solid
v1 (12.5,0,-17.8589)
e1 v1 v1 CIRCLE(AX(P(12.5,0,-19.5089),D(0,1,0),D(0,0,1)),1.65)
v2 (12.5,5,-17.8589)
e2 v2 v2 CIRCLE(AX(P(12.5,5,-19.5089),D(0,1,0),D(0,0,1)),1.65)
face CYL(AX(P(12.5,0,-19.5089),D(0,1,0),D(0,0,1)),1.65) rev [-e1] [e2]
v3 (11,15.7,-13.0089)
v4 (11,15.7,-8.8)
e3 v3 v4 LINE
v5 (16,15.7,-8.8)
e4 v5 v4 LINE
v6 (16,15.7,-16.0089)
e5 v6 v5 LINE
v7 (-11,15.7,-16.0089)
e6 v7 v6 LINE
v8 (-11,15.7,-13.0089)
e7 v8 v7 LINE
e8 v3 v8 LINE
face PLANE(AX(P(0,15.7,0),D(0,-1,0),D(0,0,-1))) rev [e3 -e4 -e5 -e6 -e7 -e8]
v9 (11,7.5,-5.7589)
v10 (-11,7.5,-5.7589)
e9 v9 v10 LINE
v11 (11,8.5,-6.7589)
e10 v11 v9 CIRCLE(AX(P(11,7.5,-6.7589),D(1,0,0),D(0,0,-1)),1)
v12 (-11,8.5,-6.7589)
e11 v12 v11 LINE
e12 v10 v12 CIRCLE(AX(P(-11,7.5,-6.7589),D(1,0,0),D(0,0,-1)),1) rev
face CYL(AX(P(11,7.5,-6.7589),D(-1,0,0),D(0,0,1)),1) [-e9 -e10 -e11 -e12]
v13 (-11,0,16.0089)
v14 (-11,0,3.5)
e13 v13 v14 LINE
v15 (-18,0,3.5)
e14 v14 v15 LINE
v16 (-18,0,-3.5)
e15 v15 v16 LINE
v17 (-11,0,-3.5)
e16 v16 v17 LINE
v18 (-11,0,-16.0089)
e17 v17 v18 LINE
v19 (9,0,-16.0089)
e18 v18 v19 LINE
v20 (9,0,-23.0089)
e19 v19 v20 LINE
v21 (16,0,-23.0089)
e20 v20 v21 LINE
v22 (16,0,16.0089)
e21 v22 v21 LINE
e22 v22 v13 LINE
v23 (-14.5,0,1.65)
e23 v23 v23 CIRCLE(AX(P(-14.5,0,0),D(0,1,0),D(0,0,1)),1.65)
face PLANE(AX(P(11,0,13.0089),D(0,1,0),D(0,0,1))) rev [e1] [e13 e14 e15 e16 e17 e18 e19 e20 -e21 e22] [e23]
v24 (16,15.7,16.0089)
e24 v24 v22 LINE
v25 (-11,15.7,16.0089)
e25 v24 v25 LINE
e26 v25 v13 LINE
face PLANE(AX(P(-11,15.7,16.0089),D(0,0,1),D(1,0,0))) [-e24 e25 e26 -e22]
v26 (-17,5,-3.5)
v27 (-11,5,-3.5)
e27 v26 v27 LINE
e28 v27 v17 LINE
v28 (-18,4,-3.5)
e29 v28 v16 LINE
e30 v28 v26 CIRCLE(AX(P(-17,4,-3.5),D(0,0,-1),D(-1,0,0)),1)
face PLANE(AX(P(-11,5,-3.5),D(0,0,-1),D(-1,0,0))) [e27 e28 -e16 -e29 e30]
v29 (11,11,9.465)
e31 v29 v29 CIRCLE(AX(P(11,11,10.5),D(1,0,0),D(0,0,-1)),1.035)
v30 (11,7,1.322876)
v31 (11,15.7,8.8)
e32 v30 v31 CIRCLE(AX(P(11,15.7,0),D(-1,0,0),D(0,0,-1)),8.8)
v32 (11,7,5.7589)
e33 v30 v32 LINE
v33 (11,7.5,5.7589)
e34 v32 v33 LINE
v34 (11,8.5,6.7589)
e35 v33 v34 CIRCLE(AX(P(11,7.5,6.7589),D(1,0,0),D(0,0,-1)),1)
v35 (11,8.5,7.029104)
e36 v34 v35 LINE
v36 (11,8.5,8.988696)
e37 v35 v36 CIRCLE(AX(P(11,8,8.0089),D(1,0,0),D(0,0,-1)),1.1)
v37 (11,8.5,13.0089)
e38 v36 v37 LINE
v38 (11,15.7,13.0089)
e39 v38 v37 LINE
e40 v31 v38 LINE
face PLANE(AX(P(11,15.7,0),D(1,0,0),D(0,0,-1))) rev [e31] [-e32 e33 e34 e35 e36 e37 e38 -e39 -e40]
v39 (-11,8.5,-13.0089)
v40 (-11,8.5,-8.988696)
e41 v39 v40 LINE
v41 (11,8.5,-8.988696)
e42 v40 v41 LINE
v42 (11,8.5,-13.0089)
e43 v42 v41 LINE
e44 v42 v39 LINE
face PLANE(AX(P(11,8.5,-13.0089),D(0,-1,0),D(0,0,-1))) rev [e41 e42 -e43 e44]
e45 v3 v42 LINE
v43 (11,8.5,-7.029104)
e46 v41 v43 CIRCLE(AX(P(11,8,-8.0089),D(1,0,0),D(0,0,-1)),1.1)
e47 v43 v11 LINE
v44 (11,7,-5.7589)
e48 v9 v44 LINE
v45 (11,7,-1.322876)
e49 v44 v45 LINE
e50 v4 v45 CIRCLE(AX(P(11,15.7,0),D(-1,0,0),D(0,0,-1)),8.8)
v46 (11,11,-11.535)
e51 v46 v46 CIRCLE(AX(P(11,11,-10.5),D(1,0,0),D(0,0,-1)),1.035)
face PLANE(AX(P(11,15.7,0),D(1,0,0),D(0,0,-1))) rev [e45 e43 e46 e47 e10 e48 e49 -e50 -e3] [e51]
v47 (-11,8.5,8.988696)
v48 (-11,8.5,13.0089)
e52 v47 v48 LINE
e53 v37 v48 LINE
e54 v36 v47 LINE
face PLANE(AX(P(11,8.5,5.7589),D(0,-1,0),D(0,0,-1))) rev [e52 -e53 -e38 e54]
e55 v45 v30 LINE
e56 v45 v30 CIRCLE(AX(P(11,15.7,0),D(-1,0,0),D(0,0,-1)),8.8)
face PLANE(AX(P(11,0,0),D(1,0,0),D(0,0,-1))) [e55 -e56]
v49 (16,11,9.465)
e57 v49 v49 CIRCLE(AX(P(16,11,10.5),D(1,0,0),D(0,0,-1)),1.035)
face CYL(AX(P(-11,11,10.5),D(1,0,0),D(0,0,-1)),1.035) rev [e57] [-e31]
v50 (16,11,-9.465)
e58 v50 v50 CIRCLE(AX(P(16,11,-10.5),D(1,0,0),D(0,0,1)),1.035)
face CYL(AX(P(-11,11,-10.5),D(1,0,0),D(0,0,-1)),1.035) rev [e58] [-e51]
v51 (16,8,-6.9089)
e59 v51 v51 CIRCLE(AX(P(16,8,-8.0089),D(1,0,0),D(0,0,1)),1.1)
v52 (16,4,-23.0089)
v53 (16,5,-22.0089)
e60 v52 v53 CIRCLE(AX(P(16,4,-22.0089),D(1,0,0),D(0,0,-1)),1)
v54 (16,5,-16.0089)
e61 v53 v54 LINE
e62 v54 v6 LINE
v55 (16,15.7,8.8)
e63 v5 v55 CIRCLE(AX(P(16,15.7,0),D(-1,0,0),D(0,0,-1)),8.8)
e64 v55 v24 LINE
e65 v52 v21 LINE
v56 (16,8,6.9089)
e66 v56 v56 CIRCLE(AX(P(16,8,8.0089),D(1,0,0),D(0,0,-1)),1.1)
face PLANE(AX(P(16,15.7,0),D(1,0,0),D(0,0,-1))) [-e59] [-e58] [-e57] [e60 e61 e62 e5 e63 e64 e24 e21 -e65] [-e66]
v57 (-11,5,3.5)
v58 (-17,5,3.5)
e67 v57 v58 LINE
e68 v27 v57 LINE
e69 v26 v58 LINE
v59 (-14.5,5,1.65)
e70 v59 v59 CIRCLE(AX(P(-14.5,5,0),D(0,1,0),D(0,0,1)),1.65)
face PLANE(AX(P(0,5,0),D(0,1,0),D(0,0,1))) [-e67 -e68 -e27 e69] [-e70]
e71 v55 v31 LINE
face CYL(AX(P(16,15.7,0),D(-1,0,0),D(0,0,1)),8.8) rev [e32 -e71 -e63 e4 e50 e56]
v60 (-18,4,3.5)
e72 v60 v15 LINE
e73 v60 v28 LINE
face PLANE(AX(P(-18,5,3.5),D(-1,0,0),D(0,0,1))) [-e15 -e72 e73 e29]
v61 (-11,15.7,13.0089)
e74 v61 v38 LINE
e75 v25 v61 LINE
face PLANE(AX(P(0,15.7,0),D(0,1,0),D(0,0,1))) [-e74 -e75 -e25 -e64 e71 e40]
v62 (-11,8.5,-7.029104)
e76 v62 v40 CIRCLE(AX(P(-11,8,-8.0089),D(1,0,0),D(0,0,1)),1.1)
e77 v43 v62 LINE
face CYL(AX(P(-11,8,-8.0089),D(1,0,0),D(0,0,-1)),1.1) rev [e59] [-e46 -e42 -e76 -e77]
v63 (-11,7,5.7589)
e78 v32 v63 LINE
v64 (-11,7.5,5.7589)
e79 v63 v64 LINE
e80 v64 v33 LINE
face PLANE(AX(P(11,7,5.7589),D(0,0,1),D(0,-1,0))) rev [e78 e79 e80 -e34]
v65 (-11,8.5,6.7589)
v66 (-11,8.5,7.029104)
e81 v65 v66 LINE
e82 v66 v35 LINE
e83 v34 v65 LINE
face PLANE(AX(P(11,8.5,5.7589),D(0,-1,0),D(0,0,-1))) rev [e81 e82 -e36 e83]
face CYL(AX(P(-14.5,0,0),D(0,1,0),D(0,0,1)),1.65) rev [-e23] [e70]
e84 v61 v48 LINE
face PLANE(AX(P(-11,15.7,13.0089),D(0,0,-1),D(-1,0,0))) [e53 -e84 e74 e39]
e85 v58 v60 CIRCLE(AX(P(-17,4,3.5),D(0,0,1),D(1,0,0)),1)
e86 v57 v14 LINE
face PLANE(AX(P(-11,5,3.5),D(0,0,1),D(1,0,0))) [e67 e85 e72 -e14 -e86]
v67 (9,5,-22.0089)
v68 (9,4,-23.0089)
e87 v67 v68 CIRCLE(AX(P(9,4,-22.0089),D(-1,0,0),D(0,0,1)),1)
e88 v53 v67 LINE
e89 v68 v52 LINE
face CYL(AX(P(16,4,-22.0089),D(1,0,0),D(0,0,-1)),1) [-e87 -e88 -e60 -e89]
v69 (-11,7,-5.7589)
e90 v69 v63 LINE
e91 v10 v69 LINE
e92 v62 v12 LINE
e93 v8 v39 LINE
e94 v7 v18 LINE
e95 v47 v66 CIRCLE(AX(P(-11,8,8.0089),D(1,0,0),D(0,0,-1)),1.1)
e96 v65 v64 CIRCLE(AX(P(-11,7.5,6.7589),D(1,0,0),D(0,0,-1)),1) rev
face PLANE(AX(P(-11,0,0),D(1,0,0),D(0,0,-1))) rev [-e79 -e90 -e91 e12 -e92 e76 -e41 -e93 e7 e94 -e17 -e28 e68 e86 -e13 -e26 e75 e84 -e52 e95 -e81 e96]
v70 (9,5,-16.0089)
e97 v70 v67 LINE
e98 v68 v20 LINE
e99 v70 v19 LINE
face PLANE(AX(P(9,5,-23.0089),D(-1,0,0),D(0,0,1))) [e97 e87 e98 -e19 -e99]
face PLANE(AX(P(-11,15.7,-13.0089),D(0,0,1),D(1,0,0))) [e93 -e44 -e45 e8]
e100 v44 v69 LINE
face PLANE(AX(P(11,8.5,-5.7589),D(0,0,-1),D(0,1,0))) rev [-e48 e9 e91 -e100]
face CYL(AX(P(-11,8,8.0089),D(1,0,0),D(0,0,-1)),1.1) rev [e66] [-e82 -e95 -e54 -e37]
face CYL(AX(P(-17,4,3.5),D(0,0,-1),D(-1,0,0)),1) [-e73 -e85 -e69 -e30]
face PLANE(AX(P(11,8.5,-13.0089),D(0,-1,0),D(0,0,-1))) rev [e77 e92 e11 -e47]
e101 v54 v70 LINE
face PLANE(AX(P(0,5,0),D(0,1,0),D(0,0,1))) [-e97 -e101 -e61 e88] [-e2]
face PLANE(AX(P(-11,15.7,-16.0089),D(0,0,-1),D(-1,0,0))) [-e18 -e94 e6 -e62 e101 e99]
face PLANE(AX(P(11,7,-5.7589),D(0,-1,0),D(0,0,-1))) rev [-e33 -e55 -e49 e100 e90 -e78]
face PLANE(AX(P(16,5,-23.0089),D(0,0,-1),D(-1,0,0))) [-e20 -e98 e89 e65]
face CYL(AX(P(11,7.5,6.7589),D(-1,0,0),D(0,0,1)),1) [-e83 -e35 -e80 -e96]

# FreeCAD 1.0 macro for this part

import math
import FreeCAD as App
import Part
import Sketcher
Q = App.Units.Quantity


def edges_at(feature, points):
    """Names of the edges that pass closest to the given points."""
    edges = feature.Shape.Edges
    near = lambda p: min(range(len(edges)), key=lambda i: edges[i].distToShape(Part.Vertex(*p))[0])
    return sorted({f"Edge{near(p) + 1}" for p in points})

doc = App.newDocument("Part")
params = doc.addObject("Spreadsheet::Sheet", "Params")
for row, (alias, value) in enumerate([
    ("sketch1_width", "8.5 mm"),
    ("sketch1_width2", "1.5 mm"),
    ("sketch1_height", "7.25 mm"),
    ("pad1_length", "22 mm"),
    ("sketch2_width", "22 mm"),
    ("sketch2_height", "3 mm"),
    ("pad2_length", "15.7 mm"),
    ("sketch3_radius", "8.8 mm"),
    ("sketch3_width", "15.7 mm"),
    ("pad3_length", "5 mm"),
    ("sketch4_diameter", "2.2 mm"),
    ("sketch4_diameter2", "2.07 mm"),
    ("sketch5_width", "7 mm"),
    ("pad4_length", "5 mm"),
    ("sketch6_diameter", "3.3 mm"),
    ("fillet_radius", "1 mm"),
], start=1):
    params.set(f"A{row}", alias)
    params.set(f"B{row}", "=" + value)
    params.setAlias(f"B{row}", alias)

body = doc.addObject("PartDesign::Body", "Body")

sketch1 = doc.addObject("Sketcher::SketchObject", "Sketch")
body.addObject(sketch1)
sketch1.AttachmentSupport = (doc.YZ_Plane, [""])
sketch1.MapMode = "FlatFace"
sketch1.addGeometry([
    Part.LineSegment(App.Vector(0, 13, 0), App.Vector(0, -13, 0)),
    Part.LineSegment(App.Vector(0, -13, 0), App.Vector(8.5, -13, 0)),
    Part.LineSegment(App.Vector(8.5, -13, 0), App.Vector(8.5, -5.8, 0)),
    Part.LineSegment(App.Vector(8.5, -5.8, 0), App.Vector(7, -5.8, 0)),
    Part.LineSegment(App.Vector(7, -5.8, 0), App.Vector(7, 5.8, 0)),
    Part.LineSegment(App.Vector(7, 5.8, 0), App.Vector(8.5, 5.8, 0)),
    Part.LineSegment(App.Vector(8.5, 5.8, 0), App.Vector(8.5, 13, 0)),
    Part.LineSegment(App.Vector(8.5, 13, 0), App.Vector(0, 13, 0)),
], False)
sketch1.addConstraint([
    Sketcher.Constraint("Coincident", 0, 2, 1, 1),
    Sketcher.Constraint("Coincident", 1, 2, 2, 1),
    Sketcher.Constraint("Coincident", 2, 2, 3, 1),
    Sketcher.Constraint("Coincident", 3, 2, 4, 1),
    Sketcher.Constraint("Coincident", 4, 2, 5, 1),
    Sketcher.Constraint("Coincident", 5, 2, 6, 1),
    Sketcher.Constraint("Coincident", 6, 2, 7, 1),
    Sketcher.Constraint("Coincident", 7, 2, 0, 1),
    Sketcher.Constraint("Vertical", 0),
    Sketcher.Constraint("Horizontal", 1),
    Sketcher.Constraint("Vertical", 2),
    Sketcher.Constraint("Horizontal", 3),
    Sketcher.Constraint("Vertical", 4),
    Sketcher.Constraint("Horizontal", 5),
    Sketcher.Constraint("Vertical", 6),
    Sketcher.Constraint("Horizontal", 7),
    Sketcher.Constraint("Symmetric", 0, 2, 7, 2, -1, 1),
    Sketcher.Constraint("Symmetric", 2, 2, 5, 2, -1),
    Sketcher.Constraint("DistanceX", 1, 1, 1, 2, Q("8.5 mm")),
    Sketcher.Constraint("DistanceX", 3, 2, 3, 1, Q("1.5 mm")),
    Sketcher.Constraint("DistanceY", 2, 1, 2, 2, Q("7.25 mm")),
    Sketcher.Constraint("DistanceY", 0, 2, 0, 1, Q("26.0178 mm")),
])
sketch1.setExpression("Constraints[18]", "Params.sketch1_width")
sketch1.setExpression("Constraints[19]", "Params.sketch1_width2")
sketch1.setExpression("Constraints[20]", "Params.sketch1_height")
pad1 = doc.addObject("PartDesign::Pad", "Pad")
body.addObject(pad1)
pad1.Profile = sketch1
pad1.setExpression("Length", "Params.pad1_length")
pad1.Midplane = True

sketch2 = doc.addObject("Sketcher::SketchObject", "Sketch001")
body.addObject(sketch2)
sketch2.AttachmentSupport = (doc.XZ_Plane, [""])
sketch2.MapMode = "FlatFace"
sketch2.addGeometry([
    Part.LineSegment(App.Vector(-11, -13, 0), App.Vector(-11, -16, 0)),
    Part.LineSegment(App.Vector(-11, -16, 0), App.Vector(11, -16, 0)),
    Part.LineSegment(App.Vector(11, -16, 0), App.Vector(11, -13, 0)),
    Part.LineSegment(App.Vector(11, -13, 0), App.Vector(-11, -13, 0)),
    Part.LineSegment(App.Vector(-11, 16, 0), App.Vector(-11, 13, 0)),
    Part.LineSegment(App.Vector(-11, 13, 0), App.Vector(11, 13, 0)),
    Part.LineSegment(App.Vector(11, 13, 0), App.Vector(11, 16, 0)),
    Part.LineSegment(App.Vector(11, 16, 0), App.Vector(-11, 16, 0)),
], False)
sketch2.addConstraint([
    Sketcher.Constraint("Coincident", 0, 2, 1, 1),
    Sketcher.Constraint("Coincident", 1, 2, 2, 1),
    Sketcher.Constraint("Coincident", 2, 2, 3, 1),
    Sketcher.Constraint("Coincident", 3, 2, 0, 1),
    Sketcher.Constraint("Coincident", 4, 2, 5, 1),
    Sketcher.Constraint("Coincident", 5, 2, 6, 1),
    Sketcher.Constraint("Coincident", 6, 2, 7, 1),
    Sketcher.Constraint("Coincident", 7, 2, 4, 1),
    Sketcher.Constraint("Vertical", 0),
    Sketcher.Constraint("Horizontal", 1),
    Sketcher.Constraint("Vertical", 2),
    Sketcher.Constraint("Horizontal", 3),
    Sketcher.Constraint("Vertical", 4),
    Sketcher.Constraint("Horizontal", 5),
    Sketcher.Constraint("Vertical", 6),
    Sketcher.Constraint("Horizontal", 7),
    Sketcher.Constraint("Symmetric", 2, 2, 4, 2, -1, 1),
    Sketcher.Constraint("Symmetric", 0, 2, 6, 2, -1, 1),
    Sketcher.Constraint("Vertical", 3, 2, 4, 2),
    Sketcher.Constraint("DistanceX", 1, 1, 1, 2, Q("22 mm")),
    Sketcher.Constraint("DistanceY", 0, 2, 0, 1, Q("3 mm")),
    Sketcher.Constraint("DistanceY", 0, 2, -1, 1, Q("16.0089 mm")),
])
sketch2.setExpression("Constraints[19]", "Params.sketch2_width")
sketch2.setExpression("Constraints[20]", "Params.sketch2_height")
pad2 = doc.addObject("PartDesign::Pad", "Pad001")
body.addObject(pad2)
pad2.Profile = sketch2
pad2.setExpression("Length", "Params.pad2_length")
pad2.Reversed = True

sketch3 = doc.addObject("Sketcher::SketchObject", "Sketch002")
body.addObject(sketch3)
sketch3.AttachmentSupport = (doc.YZ_Plane, [""])
sketch3.MapMode = "FlatFace"
sketch3.AttachmentOffset = App.Placement(App.Vector(0, 0, 11), App.Rotation())
sketch3.addGeometry([
    Part.LineSegment(App.Vector(16, 9, 0), App.Vector(16, 16, 0)),
    Part.LineSegment(App.Vector(16, 16, 0), App.Vector(0, 16, 0)),
    Part.LineSegment(App.Vector(0, 16, 0), App.Vector(0, -16, 0)),
    Part.LineSegment(App.Vector(0, -16, 0), App.Vector(16, -16, 0)),
    Part.LineSegment(App.Vector(16, -16, 0), App.Vector(16, -9, 0)),
    Part.ArcOfCircle(Part.Circle(App.Vector(16, 0, 0), App.Vector(0, 0, 1), 9), math.radians(90), math.radians(270)),
], False)
sketch3.addConstraint([
    Sketcher.Constraint("Coincident", 0, 2, 1, 1),
    Sketcher.Constraint("Coincident", 1, 2, 2, 1),
    Sketcher.Constraint("Coincident", 2, 2, 3, 1),
    Sketcher.Constraint("Coincident", 3, 2, 4, 1),
    Sketcher.Constraint("Coincident", 4, 2, 5, 2),
    Sketcher.Constraint("Coincident", 5, 1, 0, 1),
    Sketcher.Constraint("Vertical", 0),
    Sketcher.Constraint("Horizontal", 1),
    Sketcher.Constraint("Vertical", 2),
    Sketcher.Constraint("Horizontal", 3),
    Sketcher.Constraint("Vertical", 4),
    Sketcher.Constraint("Symmetric", 1, 2, 2, 2, -1, 1),
    Sketcher.Constraint("Symmetric", 4, 2, 5, 1, -1),
    Sketcher.Constraint("Vertical", 5, 3, 0, 2),
    Sketcher.Constraint("Radius", 5, Q("8.8 mm")),
    Sketcher.Constraint("DistanceX", 1, 2, 1, 1, Q("15.7 mm")),
    Sketcher.Constraint("DistanceY", 0, 1, 0, 2, Q("7.2089 mm")),
])
sketch3.setExpression("Constraints[14]", "Params.sketch3_radius")
sketch3.setExpression("Constraints[15]", "Params.sketch3_width")
pad3 = doc.addObject("PartDesign::Pad", "Pad002")
body.addObject(pad3)
pad3.Profile = sketch3
pad3.setExpression("Length", "Params.pad3_length")

sketch4 = doc.addObject("Sketcher::SketchObject", "Sketch003")
body.addObject(sketch4)
sketch4.AttachmentSupport = (doc.YZ_Plane, [""])
sketch4.MapMode = "FlatFace"
sketch4.AttachmentOffset = App.Placement(App.Vector(0, 0, 16), App.Rotation())
sketch4.addGeometry([
    Part.Circle(App.Vector(11, 10.5, 0), App.Vector(0, 0, 1), 1),
    Part.Circle(App.Vector(11, -10.5, 0), App.Vector(0, 0, 1), 1),
    Part.Circle(App.Vector(8, 8, 0), App.Vector(0, 0, 1), 1.1),
    Part.Circle(App.Vector(8, -8, 0), App.Vector(0, 0, 1), 1.1),
], False)
sketch4.addConstraint([
    Sketcher.Constraint("Equal", 0, 1),
    Sketcher.Constraint("Equal", 2, 3),
    Sketcher.Constraint("Symmetric", 0, 3, 1, 3, -1),
    Sketcher.Constraint("Symmetric", 2, 3, 3, 3, -1),
    Sketcher.Constraint("Diameter", 2, Q("2.2 mm")),
    Sketcher.Constraint("Diameter", 0, Q("2.07 mm")),
    Sketcher.Constraint("DistanceX", -1, 1, 0, 3, Q("11 mm")),
    Sketcher.Constraint("DistanceX", -1, 1, 2, 3, Q("8 mm")),
    Sketcher.Constraint("DistanceY", 1, 3, 0, 3, Q("21 mm")),
    Sketcher.Constraint("DistanceY", -1, 1, 2, 3, Q("8.0089 mm")),
])
sketch4.setExpression("Constraints[4]", "Params.sketch4_diameter")
sketch4.setExpression("Constraints[5]", "Params.sketch4_diameter2")
pocket1 = doc.addObject("PartDesign::Pocket", "Pocket")
body.addObject(pocket1)
pocket1.Profile = sketch4
pocket1.Type = "ThroughAll"

sketch5 = doc.addObject("Sketcher::SketchObject", "Sketch004")
body.addObject(sketch5)
sketch5.AttachmentSupport = (doc.XZ_Plane, [""])
sketch5.MapMode = "FlatFace"
sketch5.addGeometry([
    Part.LineSegment(App.Vector(9, -16, 0), App.Vector(9, -23, 0)),
    Part.LineSegment(App.Vector(9, -23, 0), App.Vector(16, -23, 0)),
    Part.LineSegment(App.Vector(16, -23, 0), App.Vector(16, -16, 0)),
    Part.LineSegment(App.Vector(16, -16, 0), App.Vector(9, -16, 0)),
    Part.LineSegment(App.Vector(-18, 4, 0), App.Vector(-18, -4, 0)),
    Part.LineSegment(App.Vector(-18, -4, 0), App.Vector(-11, -4, 0)),
    Part.LineSegment(App.Vector(-11, -4, 0), App.Vector(-11, 4, 0)),
    Part.LineSegment(App.Vector(-11, 4, 0), App.Vector(-18, 4, 0)),
], False)
sketch5.addConstraint([
    Sketcher.Constraint("Coincident", 0, 2, 1, 1),
    Sketcher.Constraint("Coincident", 1, 2, 2, 1),
    Sketcher.Constraint("Coincident", 2, 2, 3, 1),
    Sketcher.Constraint("Coincident", 3, 2, 0, 1),
    Sketcher.Constraint("Coincident", 4, 2, 5, 1),
    Sketcher.Constraint("Coincident", 5, 2, 6, 1),
    Sketcher.Constraint("Coincident", 6, 2, 7, 1),
    Sketcher.Constraint("Coincident", 7, 2, 4, 1),
    Sketcher.Constraint("Vertical", 0),
    Sketcher.Constraint("Horizontal", 1),
    Sketcher.Constraint("Vertical", 2),
    Sketcher.Constraint("Horizontal", 3),
    Sketcher.Constraint("Vertical", 4),
    Sketcher.Constraint("Horizontal", 5),
    Sketcher.Constraint("Vertical", 6),
    Sketcher.Constraint("Horizontal", 7),
    Sketcher.Constraint("Equal", 3, 5),
    Sketcher.Constraint("Equal", 7, 0),
    Sketcher.Constraint("Equal", 2, 4),
    Sketcher.Constraint("DistanceX", 1, 1, 1, 2, Q("7 mm")),
    Sketcher.Constraint("DistanceX", -1, 1, 0, 2, Q("9 mm")),
    Sketcher.Constraint("DistanceX", 4, 2, -1, 1, Q("18 mm")),
    Sketcher.Constraint("DistanceY", 4, 2, -1, 1, Q("3.5 mm")),
    Sketcher.Constraint("DistanceY", 0, 2, -1, 1, Q("23.0089 mm")),
])
sketch5.setExpression("Constraints[19]", "Params.sketch5_width")
pad4 = doc.addObject("PartDesign::Pad", "Pad003")
body.addObject(pad4)
pad4.Profile = sketch5
pad4.setExpression("Length", "Params.pad4_length")
pad4.Reversed = True

sketch6 = doc.addObject("Sketcher::SketchObject", "Sketch005")
body.addObject(sketch6)
sketch6.AttachmentSupport = (doc.XZ_Plane, [""])
sketch6.MapMode = "FlatFace"
sketch6.AttachmentOffset = App.Placement(App.Vector(0, 0, -5), App.Rotation())
sketch6.addGeometry([
    Part.Circle(App.Vector(-14.5, 0, 0), App.Vector(0, 0, 1), 1.6),
    Part.Circle(App.Vector(12.5, -19.5, 0), App.Vector(0, 0, 1), 1.6),
], False)
sketch6.addConstraint([
    Sketcher.Constraint("Equal", 0, 1),
    Sketcher.Constraint("PointOnObject", 0, 3, -1),
    Sketcher.Constraint("Diameter", 0, Q("3.3 mm")),
    Sketcher.Constraint("DistanceX", 0, 3, 1, 3, Q("27 mm")),
    Sketcher.Constraint("DistanceX", 0, 3, -1, 1, Q("14.5 mm")),
    Sketcher.Constraint("DistanceY", 1, 3, -1, 1, Q("19.5089 mm")),
])
sketch6.setExpression("Constraints[2]", "Params.sketch6_diameter")
pocket2 = doc.addObject("PartDesign::Pocket", "Pocket001")
body.addObject(pocket2)
pocket2.Profile = sketch6
pocket2.Type = "ThroughAll"
pocket2.Reversed = True
doc.recompute()

fillet = doc.addObject("PartDesign::Fillet", "Fillet")
body.addObject(fillet)
fillet.Base = (pocket2, edges_at(pocket2, [
    (-18, 5, 0),
    (12.5, 5, -23.009),
    (0, 8.5, 5.759),
    (0, 8.5, -5.759),
]))
fillet.setExpression("Radius", "Params.fillet_radius")

doc.recompute()
